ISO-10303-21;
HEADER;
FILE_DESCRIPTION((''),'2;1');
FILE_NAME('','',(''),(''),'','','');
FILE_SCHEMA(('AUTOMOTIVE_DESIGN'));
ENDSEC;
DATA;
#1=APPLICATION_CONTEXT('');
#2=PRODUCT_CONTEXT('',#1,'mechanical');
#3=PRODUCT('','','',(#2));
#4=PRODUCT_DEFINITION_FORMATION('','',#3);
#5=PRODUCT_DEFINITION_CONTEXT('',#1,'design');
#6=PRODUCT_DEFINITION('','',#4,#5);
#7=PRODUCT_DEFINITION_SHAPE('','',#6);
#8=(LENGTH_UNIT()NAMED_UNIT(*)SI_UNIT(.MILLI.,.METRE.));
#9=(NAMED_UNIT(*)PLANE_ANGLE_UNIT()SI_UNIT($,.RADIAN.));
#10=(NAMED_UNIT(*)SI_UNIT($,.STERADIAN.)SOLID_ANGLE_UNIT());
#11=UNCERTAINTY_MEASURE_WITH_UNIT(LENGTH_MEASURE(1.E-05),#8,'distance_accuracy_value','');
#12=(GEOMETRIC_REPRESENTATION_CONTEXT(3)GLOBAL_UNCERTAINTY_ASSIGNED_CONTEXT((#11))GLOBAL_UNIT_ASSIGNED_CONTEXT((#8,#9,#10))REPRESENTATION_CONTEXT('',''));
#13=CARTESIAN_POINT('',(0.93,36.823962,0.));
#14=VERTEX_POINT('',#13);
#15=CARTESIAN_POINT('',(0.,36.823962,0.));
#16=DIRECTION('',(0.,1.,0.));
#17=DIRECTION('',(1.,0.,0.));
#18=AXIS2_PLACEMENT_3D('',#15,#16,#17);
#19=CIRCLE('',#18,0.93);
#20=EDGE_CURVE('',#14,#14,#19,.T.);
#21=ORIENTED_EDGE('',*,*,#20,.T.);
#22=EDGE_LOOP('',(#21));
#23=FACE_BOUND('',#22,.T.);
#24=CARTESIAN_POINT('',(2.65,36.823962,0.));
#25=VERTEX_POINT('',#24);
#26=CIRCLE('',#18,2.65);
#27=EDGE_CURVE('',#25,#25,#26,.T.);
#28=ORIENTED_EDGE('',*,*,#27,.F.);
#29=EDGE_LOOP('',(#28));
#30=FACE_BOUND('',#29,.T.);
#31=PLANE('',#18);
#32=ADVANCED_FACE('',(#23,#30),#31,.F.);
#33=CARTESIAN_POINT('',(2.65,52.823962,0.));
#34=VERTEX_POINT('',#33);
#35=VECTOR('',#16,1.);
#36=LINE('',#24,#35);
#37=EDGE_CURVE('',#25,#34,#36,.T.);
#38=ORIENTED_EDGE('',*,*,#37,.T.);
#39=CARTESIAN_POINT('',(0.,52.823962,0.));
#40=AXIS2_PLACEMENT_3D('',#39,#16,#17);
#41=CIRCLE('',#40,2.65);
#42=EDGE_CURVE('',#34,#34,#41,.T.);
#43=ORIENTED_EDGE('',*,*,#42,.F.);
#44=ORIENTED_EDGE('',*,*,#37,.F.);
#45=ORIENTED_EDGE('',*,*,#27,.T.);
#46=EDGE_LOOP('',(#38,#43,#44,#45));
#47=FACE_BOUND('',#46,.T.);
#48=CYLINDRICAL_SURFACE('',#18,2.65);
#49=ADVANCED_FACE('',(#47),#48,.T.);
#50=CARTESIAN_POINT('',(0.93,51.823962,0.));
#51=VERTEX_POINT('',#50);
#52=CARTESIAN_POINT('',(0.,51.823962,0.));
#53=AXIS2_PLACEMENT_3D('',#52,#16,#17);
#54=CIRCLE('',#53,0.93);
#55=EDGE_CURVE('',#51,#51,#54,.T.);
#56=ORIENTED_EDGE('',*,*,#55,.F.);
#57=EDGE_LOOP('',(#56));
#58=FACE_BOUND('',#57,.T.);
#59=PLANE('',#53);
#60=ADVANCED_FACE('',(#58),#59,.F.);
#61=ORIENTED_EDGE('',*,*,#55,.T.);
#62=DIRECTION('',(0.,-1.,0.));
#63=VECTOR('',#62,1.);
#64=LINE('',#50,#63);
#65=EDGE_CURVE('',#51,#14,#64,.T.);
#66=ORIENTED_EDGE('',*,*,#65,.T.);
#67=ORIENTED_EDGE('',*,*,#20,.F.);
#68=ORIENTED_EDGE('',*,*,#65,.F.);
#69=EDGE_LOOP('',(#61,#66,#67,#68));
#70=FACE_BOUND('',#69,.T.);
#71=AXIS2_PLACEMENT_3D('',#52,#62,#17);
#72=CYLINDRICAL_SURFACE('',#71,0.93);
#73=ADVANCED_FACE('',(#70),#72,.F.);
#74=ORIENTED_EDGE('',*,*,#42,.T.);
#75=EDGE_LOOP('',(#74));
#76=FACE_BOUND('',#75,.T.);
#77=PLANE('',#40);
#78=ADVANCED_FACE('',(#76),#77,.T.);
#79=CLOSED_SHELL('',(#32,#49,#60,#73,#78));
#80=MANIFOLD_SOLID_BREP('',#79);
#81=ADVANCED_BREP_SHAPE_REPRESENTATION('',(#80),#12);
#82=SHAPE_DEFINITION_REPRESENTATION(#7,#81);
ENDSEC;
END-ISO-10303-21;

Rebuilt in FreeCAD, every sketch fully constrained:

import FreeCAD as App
import Part
import Sketcher

doc = App.newDocument("Part")
body = doc.addObject("PartDesign::Body", "Body")

# Sketch on XY plane
sketch1 = body.newObject("Sketcher::SketchObject", "Sketch")
sketch1.AttachmentSupport = (doc.getObject("XY_Plane"), [""])
sketch1.MapMode = "FlatFace"
sketch1.addGeometry([
    Part.LineSegment(App.Vector(2.6, 52.8, 0), App.Vector(0, 52.8, 0)),  # 0
    Part.LineSegment(App.Vector(0, 52.8, 0), App.Vector(0, 51.8, 0)),  # 1
    Part.LineSegment(App.Vector(0, 51.8, 0), App.Vector(0.9, 51.8, 0)),  # 2
    Part.LineSegment(App.Vector(0.9, 51.8, 0), App.Vector(0.9, 36.8, 0)),  # 3
    Part.LineSegment(App.Vector(0.9, 36.8, 0), App.Vector(2.6, 36.8, 0)),  # 4
    Part.LineSegment(App.Vector(2.6, 36.8, 0), App.Vector(2.6, 52.8, 0)),  # 5
], False)
sketch1.addConstraint([
    Sketcher.Constraint("Coincident", 0, 2, 1, 1),
    Sketcher.Constraint("Coincident", 1, 2, 2, 1),
    Sketcher.Constraint("Coincident", 2, 2, 3, 1),
    Sketcher.Constraint("Coincident", 3, 2, 4, 1),
    Sketcher.Constraint("Coincident", 4, 2, 5, 1),
    Sketcher.Constraint("Coincident", 5, 2, 0, 1),
    Sketcher.Constraint("Horizontal", 0),
    Sketcher.Constraint("Vertical", 1),
    Sketcher.Constraint("Horizontal", 2),
    Sketcher.Constraint("Vertical", 3),
    Sketcher.Constraint("Horizontal", 4),
    Sketcher.Constraint("Vertical", 5),
    Sketcher.Constraint("PointOnObject", 0, 2, -2),
    Sketcher.Constraint("DistanceY", 1, 2, 1, 1, 1.0),
    Sketcher.Constraint("DistanceY", 3, 2, 3, 1, 15.0),
    Sketcher.Constraint("DistanceX", 0, 2, 0, 1, 2.65),
    Sketcher.Constraint("DistanceX", 2, 1, 2, 2, 0.93),
    Sketcher.Constraint("DistanceY", -1, 1, 0, 2, 52.823962),
])
revolution = body.newObject("PartDesign::Revolution", "Revolution")
revolution.Profile = sketch1
revolution.ReferenceAxis = (sketch1, ["V_Axis"])
revolution.Angle = 360

doc.recompute()
